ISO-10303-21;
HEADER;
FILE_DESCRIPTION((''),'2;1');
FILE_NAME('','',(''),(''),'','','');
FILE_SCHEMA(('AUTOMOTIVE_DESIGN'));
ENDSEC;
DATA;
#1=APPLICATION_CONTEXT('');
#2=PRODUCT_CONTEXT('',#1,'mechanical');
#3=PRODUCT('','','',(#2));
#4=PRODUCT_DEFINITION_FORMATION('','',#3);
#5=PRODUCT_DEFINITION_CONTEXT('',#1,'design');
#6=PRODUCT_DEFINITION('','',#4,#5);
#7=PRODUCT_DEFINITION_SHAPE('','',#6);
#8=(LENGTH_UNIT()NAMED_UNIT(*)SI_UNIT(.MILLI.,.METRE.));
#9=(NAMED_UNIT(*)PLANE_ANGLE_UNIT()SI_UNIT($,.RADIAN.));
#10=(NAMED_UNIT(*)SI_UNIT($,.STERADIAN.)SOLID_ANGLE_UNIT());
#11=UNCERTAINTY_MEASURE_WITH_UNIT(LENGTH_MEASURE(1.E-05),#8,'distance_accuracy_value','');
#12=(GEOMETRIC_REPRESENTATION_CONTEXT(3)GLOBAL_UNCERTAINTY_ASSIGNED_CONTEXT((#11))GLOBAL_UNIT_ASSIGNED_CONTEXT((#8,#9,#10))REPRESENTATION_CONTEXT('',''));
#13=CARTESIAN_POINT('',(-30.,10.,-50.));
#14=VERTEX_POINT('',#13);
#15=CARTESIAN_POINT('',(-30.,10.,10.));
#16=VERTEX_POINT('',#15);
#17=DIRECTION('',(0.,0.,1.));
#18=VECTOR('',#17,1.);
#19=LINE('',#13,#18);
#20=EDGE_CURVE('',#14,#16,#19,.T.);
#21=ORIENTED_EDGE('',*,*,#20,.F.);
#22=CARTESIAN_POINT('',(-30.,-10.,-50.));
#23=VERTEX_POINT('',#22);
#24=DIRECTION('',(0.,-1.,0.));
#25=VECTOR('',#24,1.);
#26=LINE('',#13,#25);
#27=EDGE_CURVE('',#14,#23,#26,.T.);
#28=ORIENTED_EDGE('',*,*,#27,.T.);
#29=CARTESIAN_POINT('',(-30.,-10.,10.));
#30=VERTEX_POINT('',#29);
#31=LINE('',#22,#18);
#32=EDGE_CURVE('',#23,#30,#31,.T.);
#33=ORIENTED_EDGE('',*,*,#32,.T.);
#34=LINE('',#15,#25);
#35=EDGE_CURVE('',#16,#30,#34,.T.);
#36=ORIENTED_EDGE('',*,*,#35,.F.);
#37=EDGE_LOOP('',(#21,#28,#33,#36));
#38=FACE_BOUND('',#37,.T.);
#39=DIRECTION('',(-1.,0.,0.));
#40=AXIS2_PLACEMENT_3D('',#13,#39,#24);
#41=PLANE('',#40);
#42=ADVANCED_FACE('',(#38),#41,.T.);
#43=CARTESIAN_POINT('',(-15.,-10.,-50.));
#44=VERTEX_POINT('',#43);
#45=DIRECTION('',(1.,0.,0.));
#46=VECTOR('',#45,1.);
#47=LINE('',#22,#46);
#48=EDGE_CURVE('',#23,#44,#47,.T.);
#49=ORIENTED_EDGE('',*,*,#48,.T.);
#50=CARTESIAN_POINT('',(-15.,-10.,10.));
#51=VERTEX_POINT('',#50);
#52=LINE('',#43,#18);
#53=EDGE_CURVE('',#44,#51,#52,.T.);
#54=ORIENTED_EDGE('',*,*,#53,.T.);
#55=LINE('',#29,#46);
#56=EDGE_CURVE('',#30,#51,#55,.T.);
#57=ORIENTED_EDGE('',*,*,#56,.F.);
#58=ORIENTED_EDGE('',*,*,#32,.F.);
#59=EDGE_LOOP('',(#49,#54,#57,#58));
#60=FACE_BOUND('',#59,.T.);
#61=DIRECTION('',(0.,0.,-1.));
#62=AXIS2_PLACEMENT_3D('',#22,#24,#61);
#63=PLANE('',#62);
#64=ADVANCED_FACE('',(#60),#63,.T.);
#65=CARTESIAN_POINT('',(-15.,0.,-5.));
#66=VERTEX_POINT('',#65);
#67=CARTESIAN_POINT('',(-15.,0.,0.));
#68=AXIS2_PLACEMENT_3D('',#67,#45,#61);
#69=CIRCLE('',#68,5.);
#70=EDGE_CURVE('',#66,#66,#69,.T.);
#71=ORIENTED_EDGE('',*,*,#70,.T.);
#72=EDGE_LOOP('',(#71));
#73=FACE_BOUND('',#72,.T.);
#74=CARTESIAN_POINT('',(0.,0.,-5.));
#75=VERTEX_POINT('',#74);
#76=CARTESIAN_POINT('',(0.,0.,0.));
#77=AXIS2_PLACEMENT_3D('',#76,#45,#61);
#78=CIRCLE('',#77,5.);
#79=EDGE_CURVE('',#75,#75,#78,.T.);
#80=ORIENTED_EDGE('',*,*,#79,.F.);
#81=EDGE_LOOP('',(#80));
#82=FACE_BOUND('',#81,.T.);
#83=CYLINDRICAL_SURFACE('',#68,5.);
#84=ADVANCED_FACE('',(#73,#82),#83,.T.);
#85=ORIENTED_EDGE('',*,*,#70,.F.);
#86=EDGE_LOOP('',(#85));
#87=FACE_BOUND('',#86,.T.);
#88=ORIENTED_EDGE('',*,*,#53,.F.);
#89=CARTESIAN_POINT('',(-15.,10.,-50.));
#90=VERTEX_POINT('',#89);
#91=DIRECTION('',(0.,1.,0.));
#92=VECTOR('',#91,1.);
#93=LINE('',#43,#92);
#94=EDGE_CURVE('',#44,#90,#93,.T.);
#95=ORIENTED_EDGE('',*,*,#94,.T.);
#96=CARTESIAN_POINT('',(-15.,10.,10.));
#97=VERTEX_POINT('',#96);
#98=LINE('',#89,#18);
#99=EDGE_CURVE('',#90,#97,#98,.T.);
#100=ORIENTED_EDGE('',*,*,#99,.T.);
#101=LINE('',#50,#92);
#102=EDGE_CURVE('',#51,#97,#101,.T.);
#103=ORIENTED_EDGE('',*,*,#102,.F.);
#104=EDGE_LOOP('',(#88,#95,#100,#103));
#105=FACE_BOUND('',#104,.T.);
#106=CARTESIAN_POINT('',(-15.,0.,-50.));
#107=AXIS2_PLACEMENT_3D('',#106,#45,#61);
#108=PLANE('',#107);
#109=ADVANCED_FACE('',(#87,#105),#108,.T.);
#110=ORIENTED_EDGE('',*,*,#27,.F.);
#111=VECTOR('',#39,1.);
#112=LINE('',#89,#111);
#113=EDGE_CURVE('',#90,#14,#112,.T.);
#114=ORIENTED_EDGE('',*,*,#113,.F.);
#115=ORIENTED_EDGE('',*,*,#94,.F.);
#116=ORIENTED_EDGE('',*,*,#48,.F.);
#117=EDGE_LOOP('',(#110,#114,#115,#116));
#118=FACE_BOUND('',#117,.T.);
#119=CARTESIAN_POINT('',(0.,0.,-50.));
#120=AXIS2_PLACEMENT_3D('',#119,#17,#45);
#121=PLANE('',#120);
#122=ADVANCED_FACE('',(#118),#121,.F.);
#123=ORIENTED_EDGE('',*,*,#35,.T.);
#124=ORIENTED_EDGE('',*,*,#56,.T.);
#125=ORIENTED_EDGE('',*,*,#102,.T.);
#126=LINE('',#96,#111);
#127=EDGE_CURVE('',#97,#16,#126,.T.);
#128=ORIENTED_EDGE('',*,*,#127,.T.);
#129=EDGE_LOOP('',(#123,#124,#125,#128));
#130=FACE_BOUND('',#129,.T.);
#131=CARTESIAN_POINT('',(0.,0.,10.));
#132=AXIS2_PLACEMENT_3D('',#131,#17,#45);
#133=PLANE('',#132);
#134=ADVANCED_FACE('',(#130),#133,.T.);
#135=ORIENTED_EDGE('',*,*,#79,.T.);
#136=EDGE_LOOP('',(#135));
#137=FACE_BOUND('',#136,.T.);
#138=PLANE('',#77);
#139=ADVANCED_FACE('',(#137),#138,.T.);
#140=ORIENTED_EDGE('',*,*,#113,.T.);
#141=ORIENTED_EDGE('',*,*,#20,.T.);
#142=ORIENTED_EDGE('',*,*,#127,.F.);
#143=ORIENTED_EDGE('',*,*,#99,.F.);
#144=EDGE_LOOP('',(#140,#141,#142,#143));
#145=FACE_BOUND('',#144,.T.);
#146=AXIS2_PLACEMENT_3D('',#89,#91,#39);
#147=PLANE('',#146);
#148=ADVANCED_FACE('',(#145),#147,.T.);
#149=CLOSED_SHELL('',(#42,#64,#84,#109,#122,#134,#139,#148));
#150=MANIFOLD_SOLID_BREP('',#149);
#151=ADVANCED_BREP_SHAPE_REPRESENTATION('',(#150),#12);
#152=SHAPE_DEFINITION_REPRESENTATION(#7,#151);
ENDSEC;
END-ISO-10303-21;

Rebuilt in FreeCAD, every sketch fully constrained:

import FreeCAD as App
import Part
import Sketcher


def add_polygon(sketch, points):
    """Adds a closed chain of lines whose ends are joined by coincident constraints."""
    first, n = sketch.GeometryCount, len(points)
    for a, b in zip(points, points[1:] + points[:1]):
        sketch.addGeometry(Part.LineSegment(App.Vector(*a, 0), App.Vector(*b, 0)), False)
    for i in range(n):
        sketch.addConstraint(Sketcher.Constraint("Coincident", first + i, 2, first + (i + 1) % n, 1))

doc = App.newDocument("Part")
body = doc.addObject("PartDesign::Body", "Body")

sketch1 = body.newObject("Sketcher::SketchObject", "Sketch")
sketch1.AttachmentSupport = (doc.getObject("YZ_Plane"), [""])
sketch1.MapMode = "FlatFace"
sketch1.addGeometry(Part.Circle(App.Vector(0, 0, 0), App.Vector(0, 0, 1), 5), False)
sketch1.addConstraint([
    Sketcher.Constraint("Coincident", 0, 3, -1, 1),
    Sketcher.Constraint("Diameter", 0, 10.0),
])
pad1 = body.newObject("PartDesign::Pad", "Pad")
pad1.Profile = sketch1
pad1.Length = 15
pad1.Reversed = True

sketch2 = body.newObject("Sketcher::SketchObject", "Sketch001")
sketch2.AttachmentSupport = (doc.getObject("XY_Plane"), [""])
sketch2.MapMode = "FlatFace"
add_polygon(sketch2, [(-15, 10), (-30, 10), (-30, -10), (-15, -10)])
sketch2.addConstraint([
    Sketcher.Constraint("Horizontal", 0),
    Sketcher.Constraint("Vertical", 1),
    Sketcher.Constraint("Horizontal", 2),
    Sketcher.Constraint("Vertical", 3),
    Sketcher.Constraint("DistanceX", 0, 2, 0, 1, 15.0),
    Sketcher.Constraint("DistanceY", 1, 2, 1, 1, 20.0),
    Sketcher.Constraint("DistanceX", 0, 2, -1, 1, 30.0),
    Sketcher.Constraint("DistanceY", -1, 1, 0, 2, 10.0),
])
pad2 = body.newObject("PartDesign::Pad", "Pad001")
pad2.Profile = sketch2
pad2.Type = "TwoLengths"
pad2.Length = 10
pad2.Length2 = 50

doc.recompute()
